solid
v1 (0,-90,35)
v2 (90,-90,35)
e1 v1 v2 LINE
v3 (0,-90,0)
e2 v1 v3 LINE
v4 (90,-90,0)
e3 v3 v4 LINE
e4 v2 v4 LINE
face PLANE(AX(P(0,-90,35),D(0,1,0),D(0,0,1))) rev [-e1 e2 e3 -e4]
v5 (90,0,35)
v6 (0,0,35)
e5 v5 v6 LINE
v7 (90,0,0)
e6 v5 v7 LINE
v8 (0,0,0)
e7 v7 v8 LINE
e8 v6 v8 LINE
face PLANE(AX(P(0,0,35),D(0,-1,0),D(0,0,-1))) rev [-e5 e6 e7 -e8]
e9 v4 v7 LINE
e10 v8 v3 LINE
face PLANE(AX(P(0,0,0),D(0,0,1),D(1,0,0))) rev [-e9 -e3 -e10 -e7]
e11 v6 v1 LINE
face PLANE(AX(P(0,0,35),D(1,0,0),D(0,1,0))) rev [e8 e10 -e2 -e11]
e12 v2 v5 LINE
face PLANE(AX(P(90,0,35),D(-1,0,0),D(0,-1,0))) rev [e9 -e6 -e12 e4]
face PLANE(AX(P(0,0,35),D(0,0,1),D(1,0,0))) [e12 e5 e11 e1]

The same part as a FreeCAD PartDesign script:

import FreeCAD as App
import Part
import Sketcher
from FreeCAD import Vector

doc = App.newDocument("Part")
params = doc.addObject("Spreadsheet::Sheet", "Params")
for row, (alias, value) in enumerate([
    ("sketch1_width", "90 mm"),
    ("pad1_length", "35 mm"),
], start=1):
    params.set(f"A{row}", alias)
    params.set(f"B{row}", "=" + value)
    params.setAlias(f"B{row}", alias)

body = doc.addObject("PartDesign::Body", "Body")

sketch1 = body.newObject("Sketcher::SketchObject", "Sketch")
sketch1.AttachmentSupport = (doc.getObject("XY_Plane"), [""])
sketch1.MapMode = "FlatFace"
sketch1.addGeometry([
    Part.LineSegment(Vector(0, 0, 0), Vector(0, -90, 0)),
    Part.LineSegment(Vector(0, -90, 0), Vector(90, -90, 0)),
    Part.LineSegment(Vector(90, -90, 0), Vector(90, 0, 0)),
    Part.LineSegment(Vector(90, 0, 0), Vector(0, 0, 0)),
], False)
sketch1.addConstraint([
    Sketcher.Constraint("Coincident", 0, 2, 1, 1),
    Sketcher.Constraint("Coincident", 1, 2, 2, 1),
    Sketcher.Constraint("Coincident", 2, 2, 3, 1),
    Sketcher.Constraint("Coincident", 3, 2, 0, 1),
    Sketcher.Constraint("Vertical", 0),
    Sketcher.Constraint("Horizontal", 1),
    Sketcher.Constraint("Vertical", 2),
    Sketcher.Constraint("Horizontal", 3),
    Sketcher.Constraint("Coincident", 3, 2, -1, 1),
    Sketcher.Constraint("Equal", 3, 0),
    Sketcher.Constraint("DistanceX", 1, 1, 1, 2, 90.0),
])
sketch1.setExpression("Constraints[10]", "Params.sketch1_width")
pad1 = body.newObject("PartDesign::Pad", "Pad")
pad1.Profile = sketch1
pad1.setExpression("Length", "Params.pad1_length")

doc.recompute()
